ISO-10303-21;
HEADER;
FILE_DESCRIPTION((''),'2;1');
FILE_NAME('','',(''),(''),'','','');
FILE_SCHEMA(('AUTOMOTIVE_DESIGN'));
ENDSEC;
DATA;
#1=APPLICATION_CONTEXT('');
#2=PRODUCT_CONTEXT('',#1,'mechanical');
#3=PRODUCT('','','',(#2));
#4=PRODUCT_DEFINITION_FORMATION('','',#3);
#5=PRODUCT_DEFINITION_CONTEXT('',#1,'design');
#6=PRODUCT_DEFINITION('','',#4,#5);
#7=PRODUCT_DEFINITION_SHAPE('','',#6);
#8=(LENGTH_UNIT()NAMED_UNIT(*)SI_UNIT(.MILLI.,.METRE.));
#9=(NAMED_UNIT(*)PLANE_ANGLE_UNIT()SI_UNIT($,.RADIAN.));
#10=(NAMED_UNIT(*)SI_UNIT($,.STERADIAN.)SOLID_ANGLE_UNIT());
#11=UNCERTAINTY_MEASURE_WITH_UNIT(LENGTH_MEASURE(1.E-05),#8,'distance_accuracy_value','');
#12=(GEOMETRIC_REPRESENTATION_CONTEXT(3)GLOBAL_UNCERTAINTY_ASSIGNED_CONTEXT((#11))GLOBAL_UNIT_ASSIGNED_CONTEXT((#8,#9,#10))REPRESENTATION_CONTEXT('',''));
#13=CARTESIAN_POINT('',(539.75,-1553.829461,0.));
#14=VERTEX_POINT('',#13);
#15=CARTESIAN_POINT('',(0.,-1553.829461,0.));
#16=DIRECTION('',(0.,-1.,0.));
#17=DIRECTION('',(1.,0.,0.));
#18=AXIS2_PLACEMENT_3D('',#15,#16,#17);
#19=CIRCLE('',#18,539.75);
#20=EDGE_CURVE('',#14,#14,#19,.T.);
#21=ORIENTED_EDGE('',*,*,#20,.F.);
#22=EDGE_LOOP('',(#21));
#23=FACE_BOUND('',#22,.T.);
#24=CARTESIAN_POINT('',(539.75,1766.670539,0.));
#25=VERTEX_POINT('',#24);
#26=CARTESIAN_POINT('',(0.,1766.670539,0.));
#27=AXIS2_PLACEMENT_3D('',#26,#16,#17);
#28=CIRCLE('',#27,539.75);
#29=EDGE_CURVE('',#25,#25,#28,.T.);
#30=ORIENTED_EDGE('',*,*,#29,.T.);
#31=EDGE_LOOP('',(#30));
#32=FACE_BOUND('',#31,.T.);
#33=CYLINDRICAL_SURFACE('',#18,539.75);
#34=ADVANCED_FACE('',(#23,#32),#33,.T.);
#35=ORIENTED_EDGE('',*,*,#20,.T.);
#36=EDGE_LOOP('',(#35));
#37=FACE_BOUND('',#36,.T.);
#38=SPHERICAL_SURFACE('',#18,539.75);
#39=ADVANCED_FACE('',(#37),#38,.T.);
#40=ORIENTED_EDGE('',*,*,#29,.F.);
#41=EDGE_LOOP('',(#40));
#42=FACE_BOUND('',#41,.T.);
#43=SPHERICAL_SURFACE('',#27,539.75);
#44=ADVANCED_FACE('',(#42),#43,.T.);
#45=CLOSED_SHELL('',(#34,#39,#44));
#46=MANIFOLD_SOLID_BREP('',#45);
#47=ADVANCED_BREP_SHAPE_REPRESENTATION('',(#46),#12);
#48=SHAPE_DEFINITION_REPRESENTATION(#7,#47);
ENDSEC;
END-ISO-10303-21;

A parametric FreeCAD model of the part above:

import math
import FreeCAD as App
import Part
import Sketcher

doc = App.newDocument("Part")
body = doc.addObject("PartDesign::Body", "Body")

# Sketch on XY plane
sketch1 = body.newObject("Sketcher::SketchObject", "Sketch")
sketch1.AttachmentSupport = (doc.getObject("XY_Plane"), [""])
sketch1.MapMode = "FlatFace"
sketch1.addGeometry([
    Part.ArcOfCircle(Part.Circle(App.Vector(0, 1767, 0), App.Vector(0, 0, 1), 540), math.radians(0), math.radians(90)),
    Part.LineSegment(App.Vector(0, 2306, 0), App.Vector(0, -2094, 0)),
    Part.ArcOfCircle(Part.Circle(App.Vector(0, -1554, 0), App.Vector(0, 0, 1), 540), math.radians(-90), math.radians(0)),
    Part.LineSegment(App.Vector(540, -1554, 0), App.Vector(540, 1767, 0)),
], False)
sketch1.addConstraint([
    Sketcher.Constraint("Coincident", 0, 2, 1, 1),
    Sketcher.Constraint("Coincident", 1, 2, 2, 1),
    Sketcher.Constraint("Tangent", 2, 2, 3, 1),
    Sketcher.Constraint("Tangent", 3, 2, 0, 1),
    Sketcher.Constraint("Vertical", 1),
    Sketcher.Constraint("Vertical", 3),
    Sketcher.Constraint("Equal", 0, 2),
    Sketcher.Constraint("PointOnObject", 0, 3, -2),
    Sketcher.Constraint("PointOnObject", 1, 2, -2),
    Sketcher.Constraint("DistanceY", 1, 2, 1, 1, 4400.0),
    Sketcher.Constraint("Radius", 0, 539.75),
    Sketcher.Constraint("DistanceY", -1, 1, 0, 3, 1766.670539),
])
revolution = body.newObject("PartDesign::Revolution", "Revolution")
revolution.Profile = sketch1
revolution.ReferenceAxis = (sketch1, ["V_Axis"])
revolution.Angle = 360

doc.recompute()
